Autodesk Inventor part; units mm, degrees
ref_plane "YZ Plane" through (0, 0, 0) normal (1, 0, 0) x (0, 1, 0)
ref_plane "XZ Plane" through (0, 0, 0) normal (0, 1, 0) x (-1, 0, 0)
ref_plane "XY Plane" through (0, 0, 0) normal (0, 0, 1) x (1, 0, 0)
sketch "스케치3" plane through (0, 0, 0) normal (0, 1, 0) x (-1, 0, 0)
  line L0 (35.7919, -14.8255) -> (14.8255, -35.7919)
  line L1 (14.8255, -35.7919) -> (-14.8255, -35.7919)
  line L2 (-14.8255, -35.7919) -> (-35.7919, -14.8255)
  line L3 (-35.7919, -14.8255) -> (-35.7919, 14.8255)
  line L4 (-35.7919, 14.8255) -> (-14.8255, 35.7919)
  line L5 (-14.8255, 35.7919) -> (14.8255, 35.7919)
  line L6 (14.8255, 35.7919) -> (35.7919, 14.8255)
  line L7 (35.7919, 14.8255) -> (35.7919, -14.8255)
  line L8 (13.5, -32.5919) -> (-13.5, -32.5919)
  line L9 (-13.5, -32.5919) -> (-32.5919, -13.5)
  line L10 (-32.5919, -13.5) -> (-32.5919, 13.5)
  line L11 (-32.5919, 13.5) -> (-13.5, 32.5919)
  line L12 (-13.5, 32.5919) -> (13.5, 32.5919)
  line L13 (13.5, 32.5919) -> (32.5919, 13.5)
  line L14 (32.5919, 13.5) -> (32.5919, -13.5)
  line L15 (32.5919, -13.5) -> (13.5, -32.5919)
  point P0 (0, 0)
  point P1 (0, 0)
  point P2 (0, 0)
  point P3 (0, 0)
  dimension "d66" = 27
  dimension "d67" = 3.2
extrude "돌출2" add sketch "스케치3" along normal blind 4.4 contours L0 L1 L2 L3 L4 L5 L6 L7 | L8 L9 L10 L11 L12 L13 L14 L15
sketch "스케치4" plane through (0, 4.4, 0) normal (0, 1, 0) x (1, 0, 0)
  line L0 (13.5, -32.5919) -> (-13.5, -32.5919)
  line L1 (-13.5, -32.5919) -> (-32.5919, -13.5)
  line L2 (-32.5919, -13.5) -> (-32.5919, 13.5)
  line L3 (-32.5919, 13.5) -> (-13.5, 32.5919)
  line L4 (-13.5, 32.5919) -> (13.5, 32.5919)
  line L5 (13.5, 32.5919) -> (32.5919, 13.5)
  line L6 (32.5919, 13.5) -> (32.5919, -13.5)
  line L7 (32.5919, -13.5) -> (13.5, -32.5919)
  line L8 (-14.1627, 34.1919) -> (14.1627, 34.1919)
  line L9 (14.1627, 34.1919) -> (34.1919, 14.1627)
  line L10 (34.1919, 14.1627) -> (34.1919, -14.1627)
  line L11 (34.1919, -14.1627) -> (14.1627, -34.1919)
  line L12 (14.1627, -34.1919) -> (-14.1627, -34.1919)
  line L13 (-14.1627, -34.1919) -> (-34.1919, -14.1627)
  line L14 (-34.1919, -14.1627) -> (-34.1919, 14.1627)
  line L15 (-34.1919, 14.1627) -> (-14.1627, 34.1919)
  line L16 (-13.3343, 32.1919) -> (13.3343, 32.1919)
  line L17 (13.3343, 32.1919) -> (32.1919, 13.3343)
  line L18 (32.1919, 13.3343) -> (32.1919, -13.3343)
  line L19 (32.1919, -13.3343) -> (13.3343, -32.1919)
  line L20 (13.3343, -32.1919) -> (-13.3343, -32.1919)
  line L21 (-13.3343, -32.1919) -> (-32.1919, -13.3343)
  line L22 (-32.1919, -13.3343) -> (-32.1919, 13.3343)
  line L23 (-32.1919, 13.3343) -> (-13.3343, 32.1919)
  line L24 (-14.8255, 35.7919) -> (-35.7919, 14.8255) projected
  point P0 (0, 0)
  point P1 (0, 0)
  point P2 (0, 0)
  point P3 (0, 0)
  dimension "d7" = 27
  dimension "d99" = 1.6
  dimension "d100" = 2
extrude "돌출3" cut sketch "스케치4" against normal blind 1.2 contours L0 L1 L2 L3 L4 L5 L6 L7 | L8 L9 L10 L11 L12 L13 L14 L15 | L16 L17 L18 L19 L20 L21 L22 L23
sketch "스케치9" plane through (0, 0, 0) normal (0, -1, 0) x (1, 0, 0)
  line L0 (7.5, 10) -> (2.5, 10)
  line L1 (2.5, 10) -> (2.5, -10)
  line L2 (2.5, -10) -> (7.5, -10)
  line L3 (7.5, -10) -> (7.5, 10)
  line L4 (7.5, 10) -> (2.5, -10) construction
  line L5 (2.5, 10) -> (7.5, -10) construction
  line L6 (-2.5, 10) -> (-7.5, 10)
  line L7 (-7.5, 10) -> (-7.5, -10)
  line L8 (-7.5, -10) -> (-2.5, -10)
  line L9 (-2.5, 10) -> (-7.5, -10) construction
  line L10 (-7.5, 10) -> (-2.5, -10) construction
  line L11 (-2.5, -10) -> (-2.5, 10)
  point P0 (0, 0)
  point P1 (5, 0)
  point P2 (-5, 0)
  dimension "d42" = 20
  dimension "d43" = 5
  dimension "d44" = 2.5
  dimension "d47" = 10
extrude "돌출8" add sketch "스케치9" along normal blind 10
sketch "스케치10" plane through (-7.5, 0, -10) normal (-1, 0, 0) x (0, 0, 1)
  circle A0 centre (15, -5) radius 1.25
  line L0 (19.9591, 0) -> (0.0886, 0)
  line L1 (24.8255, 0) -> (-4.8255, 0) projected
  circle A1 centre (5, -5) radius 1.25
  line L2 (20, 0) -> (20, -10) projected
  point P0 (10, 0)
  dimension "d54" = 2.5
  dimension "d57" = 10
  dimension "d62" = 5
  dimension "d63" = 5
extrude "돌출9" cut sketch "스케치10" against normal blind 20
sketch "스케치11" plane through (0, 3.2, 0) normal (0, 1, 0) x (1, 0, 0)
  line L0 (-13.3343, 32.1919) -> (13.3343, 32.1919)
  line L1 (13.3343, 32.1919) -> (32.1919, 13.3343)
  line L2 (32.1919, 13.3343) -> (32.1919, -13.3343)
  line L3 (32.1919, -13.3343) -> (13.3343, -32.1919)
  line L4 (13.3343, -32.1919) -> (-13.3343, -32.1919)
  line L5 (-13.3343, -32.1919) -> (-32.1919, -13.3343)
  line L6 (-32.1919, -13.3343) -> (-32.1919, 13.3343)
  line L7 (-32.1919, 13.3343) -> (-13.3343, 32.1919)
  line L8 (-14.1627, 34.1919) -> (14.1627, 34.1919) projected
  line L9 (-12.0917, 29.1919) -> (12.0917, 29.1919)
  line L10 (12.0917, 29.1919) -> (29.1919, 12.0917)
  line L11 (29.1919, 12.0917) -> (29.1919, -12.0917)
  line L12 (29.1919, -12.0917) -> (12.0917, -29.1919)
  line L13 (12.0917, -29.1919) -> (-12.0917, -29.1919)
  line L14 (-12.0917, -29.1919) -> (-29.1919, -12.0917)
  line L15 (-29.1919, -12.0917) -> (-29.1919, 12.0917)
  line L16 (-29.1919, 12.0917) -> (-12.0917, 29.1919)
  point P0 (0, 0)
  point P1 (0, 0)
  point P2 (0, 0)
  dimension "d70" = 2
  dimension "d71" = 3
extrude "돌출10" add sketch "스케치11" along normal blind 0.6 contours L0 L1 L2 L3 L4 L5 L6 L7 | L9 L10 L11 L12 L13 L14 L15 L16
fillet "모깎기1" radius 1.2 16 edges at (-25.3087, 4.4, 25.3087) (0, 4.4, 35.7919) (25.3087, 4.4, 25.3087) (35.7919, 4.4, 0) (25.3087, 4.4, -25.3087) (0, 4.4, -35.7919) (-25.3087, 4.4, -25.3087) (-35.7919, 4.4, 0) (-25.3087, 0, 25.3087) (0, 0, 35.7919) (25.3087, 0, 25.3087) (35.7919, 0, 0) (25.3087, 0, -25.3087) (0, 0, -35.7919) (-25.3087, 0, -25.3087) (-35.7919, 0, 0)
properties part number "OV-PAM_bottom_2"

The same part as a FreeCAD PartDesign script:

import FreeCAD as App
import Part
import Sketcher


def edges_at(feature, points):
    """Names of the edges that pass closest to the given points."""
    edges = feature.Shape.Edges
    near = lambda p: min(range(len(edges)), key=lambda i: edges[i].distToShape(Part.Vertex(*p))[0])
    return sorted({f"Edge{near(p) + 1}" for p in points})

doc = App.newDocument("Part")
params = doc.addObject("Spreadsheet::Sheet", "Params")
for row, (alias, value) in enumerate([
    ("pad1_length", "4.4 mm"),
    ("pocket1_length", "1.2 mm"),
    ("sketch3_width", "5 mm"),
    ("sketch3_height", "20 mm"),
    ("pad2_length", "10 mm"),
    ("sketch4_diameter", "2.5 mm"),
    ("pocket2_length", "20 mm"),
    ("pad3_length", "0.6 mm"),
    ("fillet_radius", "1.2 mm"),
], start=1):
    params.set(f"A{row}", alias)
    params.set(f"B{row}", "=" + value)
    params.setAlias(f"B{row}", alias)

body = doc.addObject("PartDesign::Body", "Body")

sketch1 = body.newObject("Sketcher::SketchObject", "Sketch")
sketch1.AttachmentSupport = (doc.getObject("XZ_Plane"), [""])
sketch1.MapMode = "FlatFace"
sketch1.addGeometry([
    Part.LineSegment(App.Vector(-14.8255, -35.7919, 0), App.Vector(-35.7919, -14.8255, 0)),
    Part.LineSegment(App.Vector(-35.7919, -14.8255, 0), App.Vector(-35.7919, 14.8255, 0)),
    Part.LineSegment(App.Vector(-35.7919, 14.8255, 0), App.Vector(-14.8255, 35.7919, 0)),
    Part.LineSegment(App.Vector(-14.8255, 35.7919, 0), App.Vector(14.8255, 35.7919, 0)),
    Part.LineSegment(App.Vector(14.8255, 35.7919, 0), App.Vector(35.7919, 14.8255, 0)),
    Part.LineSegment(App.Vector(35.7919, 14.8255, 0), App.Vector(35.7919, -14.8255, 0)),
    Part.LineSegment(App.Vector(35.7919, -14.8255, 0), App.Vector(14.8255, -35.7919, 0)),
    Part.LineSegment(App.Vector(14.8255, -35.7919, 0), App.Vector(-14.8255, -35.7919, 0)),
], False)
sketch1.addConstraint([
    Sketcher.Constraint("Coincident", 0, 2, 1, 1),
    Sketcher.Constraint("Coincident", 1, 2, 2, 1),
    Sketcher.Constraint("Coincident", 2, 2, 3, 1),
    Sketcher.Constraint("Coincident", 3, 2, 4, 1),
    Sketcher.Constraint("Coincident", 4, 2, 5, 1),
    Sketcher.Constraint("Coincident", 5, 2, 6, 1),
    Sketcher.Constraint("Coincident", 6, 2, 7, 1),
    Sketcher.Constraint("Coincident", 7, 2, 0, 1),
    Sketcher.Constraint("Vertical", 1),
    Sketcher.Constraint("Horizontal", 3),
    Sketcher.Constraint("Vertical", 5),
    Sketcher.Constraint("Horizontal", 7),
    Sketcher.Constraint("Symmetric", 0, 2, 4, 2, -1, 1),
    Sketcher.Constraint("Symmetric", 2, 2, 6, 2, -1, 1),
    Sketcher.Constraint("Perpendicular", 0, 2),
    Sketcher.Constraint("Perpendicular", 2, 4),
    Sketcher.Constraint("Perpendicular", 4, 6),
    Sketcher.Constraint("Horizontal", 1, 2, 4, 2),
    Sketcher.Constraint("Vertical", 3, 2, 6, 2),
    Sketcher.Constraint("Equal", 7, 1),
    Sketcher.Constraint("DistanceX", 3, 1, 3, 2, 29.651),
    Sketcher.Constraint("Distance", 0, 29.651),
])
pad1 = body.newObject("PartDesign::Pad", "Pad")
pad1.Profile = sketch1
pad1.setExpression("Length", "Params.pad1_length")
pad1.Reversed = True

sketch2 = body.newObject("Sketcher::SketchObject", "Sketch001")
sketch2.AttachmentSupport = (doc.getObject("XZ_Plane"), [""])
sketch2.MapMode = "FlatFace"
sketch2.AttachmentOffset = App.Placement(App.Vector(0, 0, -4.4), App.Rotation())
sketch2.addGeometry([
    Part.LineSegment(App.Vector(14.1627, -34.1919, 0), App.Vector(-14.1627, -34.1919, 0)),
    Part.LineSegment(App.Vector(-14.1627, -34.1919, 0), App.Vector(-34.1919, -14.1627, 0)),
    Part.LineSegment(App.Vector(-34.1919, -14.1627, 0), App.Vector(-34.1919, 14.1627, 0)),
    Part.LineSegment(App.Vector(-34.1919, 14.1627, 0), App.Vector(-14.1627, 34.1919, 0)),
    Part.LineSegment(App.Vector(-14.1627, 34.1919, 0), App.Vector(14.1627, 34.1919, 0)),
    Part.LineSegment(App.Vector(14.1627, 34.1919, 0), App.Vector(34.1919, 14.1627, 0)),
    Part.LineSegment(App.Vector(34.1919, 14.1627, 0), App.Vector(34.1919, -14.1627, 0)),
    Part.LineSegment(App.Vector(34.1919, -14.1627, 0), App.Vector(14.1627, -34.1919, 0)),
], False)
sketch2.addConstraint([
    Sketcher.Constraint("Coincident", 0, 2, 1, 1),
    Sketcher.Constraint("Coincident", 1, 2, 2, 1),
    Sketcher.Constraint("Coincident", 2, 2, 3, 1),
    Sketcher.Constraint("Coincident", 3, 2, 4, 1),
    Sketcher.Constraint("Coincident", 4, 2, 5, 1),
    Sketcher.Constraint("Coincident", 5, 2, 6, 1),
    Sketcher.Constraint("Coincident", 6, 2, 7, 1),
    Sketcher.Constraint("Coincident", 7, 2, 0, 1),
    Sketcher.Constraint("Horizontal", 0),
    Sketcher.Constraint("Vertical", 2),
    Sketcher.Constraint("Horizontal", 4),
    Sketcher.Constraint("Vertical", 6),
    Sketcher.Constraint("Symmetric", 0, 2, 4, 2, -1, 1),
    Sketcher.Constraint("Symmetric", 1, 2, 5, 2, -1, 1),
    Sketcher.Constraint("Perpendicular", 1, 3),
    Sketcher.Constraint("Perpendicular", 5, 7),
    Sketcher.Constraint("Horizontal", 2, 2, 5, 2),
    Sketcher.Constraint("Horizontal", 1, 2, 6, 2),
    Sketcher.Constraint("Vertical", 0, 2, 3, 2),
    Sketcher.Constraint("Equal", 4, 2),
    Sketcher.Constraint("DistanceX", 0, 2, 0, 1, 28.3254),
    Sketcher.Constraint("DistanceY", 0, 2, -1, 1, 34.192),
])
pocket1 = body.newObject("PartDesign::Pocket", "Pocket")
pocket1.Profile = sketch2
pocket1.setExpression("Length", "Params.pocket1_length")
pocket1.Reversed = True

sketch3 = body.newObject("Sketcher::SketchObject", "Sketch002")
sketch3.AttachmentSupport = (doc.getObject("XZ_Plane"), [""])
sketch3.MapMode = "FlatFace"
sketch3.addGeometry([
    Part.LineSegment(App.Vector(7.5, -10, 0), App.Vector(7.5, 10, 0)),
    Part.LineSegment(App.Vector(7.5, 10, 0), App.Vector(2.5, 10, 0)),
    Part.LineSegment(App.Vector(2.5, 10, 0), App.Vector(2.5, -10, 0)),
    Part.LineSegment(App.Vector(2.5, -10, 0), App.Vector(7.5, -10, 0)),
    Part.LineSegment(App.Vector(-2.5, -10, 0), App.Vector(-2.5, 10, 0)),
    Part.LineSegment(App.Vector(-2.5, 10, 0), App.Vector(-7.5, 10, 0)),
    Part.LineSegment(App.Vector(-7.5, 10, 0), App.Vector(-7.5, -10, 0)),
    Part.LineSegment(App.Vector(-7.5, -10, 0), App.Vector(-2.5, -10, 0)),
], False)
sketch3.addConstraint([
    Sketcher.Constraint("Coincident", 0, 2, 1, 1),
    Sketcher.Constraint("Coincident", 1, 2, 2, 1),
    Sketcher.Constraint("Coincident", 2, 2, 3, 1),
    Sketcher.Constraint("Coincident", 3, 2, 0, 1),
    Sketcher.Constraint("Coincident", 4, 2, 5, 1),
    Sketcher.Constraint("Coincident", 5, 2, 6, 1),
    Sketcher.Constraint("Coincident", 6, 2, 7, 1),
    Sketcher.Constraint("Coincident", 7, 2, 4, 1),
    Sketcher.Constraint("Vertical", 0),
    Sketcher.Constraint("Horizontal", 1),
    Sketcher.Constraint("Vertical", 2),
    Sketcher.Constraint("Horizontal", 3),
    Sketcher.Constraint("Vertical", 4),
    Sketcher.Constraint("Horizontal", 5),
    Sketcher.Constraint("Vertical", 6),
    Sketcher.Constraint("Horizontal", 7),
    Sketcher.Constraint("Symmetric", 2, 2, 4, 2, -1, 1),
    Sketcher.Constraint("Symmetric", 0, 2, 6, 2, -1, 1),
    Sketcher.Constraint("Horizontal", 1, 2, 4, 2),
    Sketcher.Constraint("DistanceX", 1, 2, 1, 1, 5.0),
    Sketcher.Constraint("DistanceY", 0, 1, 0, 2, 20.0),
    Sketcher.Constraint("DistanceX", 4, 2, 1, 2, 5.0),
])
sketch3.setExpression("Constraints[19]", "Params.sketch3_width")
sketch3.setExpression("Constraints[20]", "Params.sketch3_height")
pad2 = body.newObject("PartDesign::Pad", "Pad001")
pad2.Profile = sketch3
pad2.setExpression("Length", "Params.pad2_length")

sketch4 = body.newObject("Sketcher::SketchObject", "Sketch003")
sketch4.AttachmentSupport = (doc.getObject("YZ_Plane"), [""])
sketch4.MapMode = "FlatFace"
sketch4.AttachmentOffset = App.Placement(App.Vector(0, 0, -7.5), App.Rotation())
sketch4.addGeometry([
    Part.Circle(App.Vector(-5, 5, 0), App.Vector(0, 0, 1), 1.25),
    Part.Circle(App.Vector(-5, -5, 0), App.Vector(0, 0, 1), 1.25),
], False)
sketch4.addConstraint([
    Sketcher.Constraint("Equal", 0, 1),
    Sketcher.Constraint("Symmetric", 0, 3, 1, 3, -1),
    Sketcher.Constraint("Diameter", 0, 2.5),
    Sketcher.Constraint("DistanceX", 0, 3, -1, 1, 5.0),
    Sketcher.Constraint("DistanceY", -1, 1, 0, 3, 5.0),
])
sketch4.setExpression("Constraints[2]", "Params.sketch4_diameter")
pocket2 = body.newObject("PartDesign::Pocket", "Pocket001")
pocket2.Profile = sketch4
pocket2.setExpression("Length", "Params.pocket2_length")
pocket2.Reversed = True

sketch5 = body.newObject("Sketcher::SketchObject", "Sketch004")
sketch5.AttachmentSupport = (doc.getObject("XZ_Plane"), [""])
sketch5.MapMode = "FlatFace"
sketch5.AttachmentOffset = App.Placement(App.Vector(0, 0, -3.2), App.Rotation())
sketch5.addGeometry([
    Part.LineSegment(App.Vector(13.3343, -32.1919, 0), App.Vector(-13.3343, -32.1919, 0)),
    Part.LineSegment(App.Vector(-13.3343, -32.1919, 0), App.Vector(-32.1919, -13.3343, 0)),
    Part.LineSegment(App.Vector(-32.1919, -13.3343, 0), App.Vector(-32.1919, 13.3343, 0)),
    Part.LineSegment(App.Vector(-32.1919, 13.3343, 0), App.Vector(-13.3343, 32.1919, 0)),
    Part.LineSegment(App.Vector(-13.3343, 32.1919, 0), App.Vector(13.3343, 32.1919, 0)),
    Part.LineSegment(App.Vector(13.3343, 32.1919, 0), App.Vector(32.1919, 13.3343, 0)),
    Part.LineSegment(App.Vector(32.1919, 13.3343, 0), App.Vector(32.1919, -13.3343, 0)),
    Part.LineSegment(App.Vector(32.1919, -13.3343, 0), App.Vector(13.3343, -32.1919, 0)),
], False)
sketch5.addConstraint([
    Sketcher.Constraint("Coincident", 0, 2, 1, 1),
    Sketcher.Constraint("Coincident", 1, 2, 2, 1),
    Sketcher.Constraint("Coincident", 2, 2, 3, 1),
    Sketcher.Constraint("Coincident", 3, 2, 4, 1),
    Sketcher.Constraint("Coincident", 4, 2, 5, 1),
    Sketcher.Constraint("Coincident", 5, 2, 6, 1),
    Sketcher.Constraint("Coincident", 6, 2, 7, 1),
    Sketcher.Constraint("Coincident", 7, 2, 0, 1),
    Sketcher.Constraint("Horizontal", 0),
    Sketcher.Constraint("Vertical", 2),
    Sketcher.Constraint("Horizontal", 4),
    Sketcher.Constraint("Vertical", 6),
    Sketcher.Constraint("Symmetric", 0, 2, 4, 2, -1, 1),
    Sketcher.Constraint("Symmetric", 1, 2, 5, 2, -1, 1),
    Sketcher.Constraint("Perpendicular", 1, 3),
    Sketcher.Constraint("Perpendicular", 5, 7),
    Sketcher.Constraint("Horizontal", 2, 2, 5, 2),
    Sketcher.Constraint("Horizontal", 1, 2, 6, 2),
    Sketcher.Constraint("Vertical", 0, 2, 3, 2),
    Sketcher.Constraint("Equal", 4, 2),
    Sketcher.Constraint("DistanceX", 0, 2, 0, 1, 26.6686),
    Sketcher.Constraint("DistanceY", 0, 2, -1, 1, 32.192),
])
pad3 = body.newObject("PartDesign::Pad", "Pad002")
pad3.Profile = sketch5
pad3.setExpression("Length", "Params.pad3_length")
pad3.Reversed = True
doc.recompute()

fillet = body.newObject("PartDesign::Fillet", "Fillet")
fillet.Base = (pad3, edges_at(pad3, [
    (-25.309, 4.4, 25.309),
    (0, 4.4, 35.792),
    (25.309, 4.4, 25.309),
    (35.792, 4.4, 0),
    (25.309, 4.4, -25.309),
    (0, 4.4, -35.792),
    (-25.309, 4.4, -25.309),
    (-35.792, 4.4, 0),
    (-25.309, 0, 25.309),
    (0, 0, 35.792),
    (25.309, 0, 25.309),
    (35.792, 0, 0),
    (25.309, 0, -25.309),
    (0, 0, -35.792),
    (-25.309, 0, -25.309),
    (-35.792, 0, 0),
]))
fillet.setExpression("Radius", "Params.fillet_radius")

doc.recompute()
